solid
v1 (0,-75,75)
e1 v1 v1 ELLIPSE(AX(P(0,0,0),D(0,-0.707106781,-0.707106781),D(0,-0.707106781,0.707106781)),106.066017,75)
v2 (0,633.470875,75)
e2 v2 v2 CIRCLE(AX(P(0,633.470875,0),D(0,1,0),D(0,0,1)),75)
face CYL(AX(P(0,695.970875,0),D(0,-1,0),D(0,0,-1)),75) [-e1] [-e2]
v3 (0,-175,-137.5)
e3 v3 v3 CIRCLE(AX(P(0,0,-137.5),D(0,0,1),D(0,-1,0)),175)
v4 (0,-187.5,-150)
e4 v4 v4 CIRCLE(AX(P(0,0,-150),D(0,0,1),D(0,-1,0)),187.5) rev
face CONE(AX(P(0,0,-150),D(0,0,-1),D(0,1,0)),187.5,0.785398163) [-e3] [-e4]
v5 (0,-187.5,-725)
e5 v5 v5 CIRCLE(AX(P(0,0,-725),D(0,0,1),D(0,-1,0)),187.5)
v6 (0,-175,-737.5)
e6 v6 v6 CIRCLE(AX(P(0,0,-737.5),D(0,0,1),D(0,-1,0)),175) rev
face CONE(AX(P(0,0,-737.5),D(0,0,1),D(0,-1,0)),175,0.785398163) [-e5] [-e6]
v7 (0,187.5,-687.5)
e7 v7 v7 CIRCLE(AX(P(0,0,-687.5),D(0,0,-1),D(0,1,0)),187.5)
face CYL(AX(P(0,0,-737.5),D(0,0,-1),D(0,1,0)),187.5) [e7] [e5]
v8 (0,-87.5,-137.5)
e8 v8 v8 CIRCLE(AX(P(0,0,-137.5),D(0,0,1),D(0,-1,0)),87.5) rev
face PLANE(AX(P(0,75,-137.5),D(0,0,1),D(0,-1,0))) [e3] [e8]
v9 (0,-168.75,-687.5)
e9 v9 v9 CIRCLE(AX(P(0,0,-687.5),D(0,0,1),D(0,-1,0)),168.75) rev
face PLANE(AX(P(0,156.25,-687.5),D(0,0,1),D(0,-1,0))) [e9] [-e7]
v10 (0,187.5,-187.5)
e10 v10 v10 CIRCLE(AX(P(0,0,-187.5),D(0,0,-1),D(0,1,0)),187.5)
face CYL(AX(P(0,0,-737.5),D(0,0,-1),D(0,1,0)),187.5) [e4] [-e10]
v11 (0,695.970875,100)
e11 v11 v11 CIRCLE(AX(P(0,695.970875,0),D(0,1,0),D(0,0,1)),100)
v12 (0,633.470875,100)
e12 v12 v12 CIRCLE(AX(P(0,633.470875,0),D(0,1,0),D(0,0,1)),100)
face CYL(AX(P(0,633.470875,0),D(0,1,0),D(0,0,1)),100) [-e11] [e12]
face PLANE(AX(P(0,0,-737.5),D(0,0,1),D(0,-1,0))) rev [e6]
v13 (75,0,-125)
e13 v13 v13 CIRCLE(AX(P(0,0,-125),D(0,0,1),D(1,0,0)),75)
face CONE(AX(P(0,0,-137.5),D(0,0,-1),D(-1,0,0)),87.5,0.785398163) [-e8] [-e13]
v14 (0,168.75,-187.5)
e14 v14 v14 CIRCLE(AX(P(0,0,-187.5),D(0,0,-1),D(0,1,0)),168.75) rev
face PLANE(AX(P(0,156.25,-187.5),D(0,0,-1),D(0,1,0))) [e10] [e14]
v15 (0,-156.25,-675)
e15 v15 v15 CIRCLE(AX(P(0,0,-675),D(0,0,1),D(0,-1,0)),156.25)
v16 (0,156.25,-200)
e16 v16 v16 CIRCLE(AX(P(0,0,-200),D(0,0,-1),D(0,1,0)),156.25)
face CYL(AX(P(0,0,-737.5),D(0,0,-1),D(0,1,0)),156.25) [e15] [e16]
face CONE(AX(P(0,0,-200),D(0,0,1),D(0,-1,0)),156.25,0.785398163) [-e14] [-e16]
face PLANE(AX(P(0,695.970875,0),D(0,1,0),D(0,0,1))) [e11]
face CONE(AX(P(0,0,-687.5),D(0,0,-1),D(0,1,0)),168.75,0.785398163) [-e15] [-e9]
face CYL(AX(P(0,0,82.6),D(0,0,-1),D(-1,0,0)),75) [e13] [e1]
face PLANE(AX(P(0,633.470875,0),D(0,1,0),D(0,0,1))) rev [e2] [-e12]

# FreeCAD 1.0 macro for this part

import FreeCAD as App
import Part
import Sketcher
from FreeCAD import Vector


def edges_at(feature, points):
    """Names of the edges that pass closest to the given points."""
    edges = feature.Shape.Edges
    near = lambda p: min(range(len(edges)), key=lambda i: edges[i].distToShape(Part.Vertex(*p))[0])
    return sorted({f"Edge{near(p) + 1}" for p in points})


def add_polygon(sketch, points):
    """Adds a closed chain of lines whose ends are joined by coincident constraints."""
    first, n = sketch.GeometryCount, len(points)
    for a, b in zip(points, points[1:] + points[:1]):
        sketch.addGeometry(Part.LineSegment(App.Vector(*a, 0), App.Vector(*b, 0)), False)
    for i in range(n):
        sketch.addConstraint(Sketcher.Constraint("Coincident", first + i, 2, first + (i + 1) % n, 1))

doc = App.newDocument("Part")
body = doc.addObject("PartDesign::Body", "Body")

# Sketch on XZ plane
sketch1 = body.newObject("Sketcher::SketchObject", "Sketch")
sketch1.AttachmentSupport = (doc.getObject("XZ_Plane"), [""])
sketch1.MapMode = "FlatFace"
sketch1.AttachmentOffset = App.Placement(Vector(0, 0, -695.970875), App.Rotation())
sketch1.addGeometry(Part.Circle(Vector(0, 0, 0), Vector(0, 0, 1), 75), False)
sketch1.addConstraint([
    Sketcher.Constraint("Coincident", 0, 3, -1, 1),
    Sketcher.Constraint("Diameter", 0, 150.0),
])

# Sketch on YZ plane
sketch2 = body.newObject("Sketcher::SketchObject", "Sketch001")
sketch2.AttachmentSupport = (doc.getObject("YZ_Plane"), [""])
sketch2.MapMode = "FlatFace"
sketch2.addGeometry([
    Part.LineSegment(Vector(696, 0, 0), Vector(0, 0, 0)),
    Part.LineSegment(Vector(0, 0, 0), Vector(0, -738, 0)),
], False)
sketch2.addConstraint([
    Sketcher.Constraint("Coincident", 0, 2, 1, 1),
    Sketcher.Constraint("Horizontal", 0),
    Sketcher.Constraint("Vertical", 1),
    Sketcher.Constraint("Coincident", 0, 2, -1, 1),
    Sketcher.Constraint("DistanceY", 1, 2, 1, 1, 737.5),
    Sketcher.Constraint("DistanceX", 0, 2, 0, 1, 695.970875),
])
doc.recompute()

additivepipe = body.newObject("PartDesign::AdditivePipe", "AdditivePipe")
additivepipe.Profile = sketch1
additivepipe.Spine = (sketch2, ["Edge1", "Edge2"])
additivepipe.Transition = "Right corner"

# Sketch on XZ plane
sketch3 = body.newObject("Sketcher::SketchObject", "Sketch002")
sketch3.AttachmentSupport = (doc.getObject("XZ_Plane"), [""])
sketch3.MapMode = "FlatFace"
sketch3.AttachmentOffset = App.Placement(Vector(0, 0, -695.970875), App.Rotation())
sketch3.addGeometry(Part.Circle(Vector(0, 0, 0), Vector(0, 0, 1), 100), False)
sketch3.addConstraint([
    Sketcher.Constraint("Coincident", 0, 3, -1, 1),
    Sketcher.Constraint("Diameter", 0, 200.0),
])
pad1 = body.newObject("PartDesign::Pad", "Pad")
pad1.Profile = sketch3
pad1.Length = 62.5

# Sketch on YZ plane
sketch4 = body.newObject("Sketcher::SketchObject", "Sketch003")
sketch4.AttachmentSupport = (doc.getObject("YZ_Plane"), [""])
sketch4.MapMode = "FlatFace"
add_polygon(sketch4, [(188, -138), (75, -138), (75, -738), (188, -738), (188, -688), (156, -688), (156, -188), (188, -188)])  # lines 0-7
sketch4.addConstraint([
    Sketcher.Constraint("Horizontal", 0),
    Sketcher.Constraint("Vertical", 1),
    Sketcher.Constraint("Horizontal", 2),
    Sketcher.Constraint("Vertical", 3),
    Sketcher.Constraint("Horizontal", 4),
    Sketcher.Constraint("Vertical", 5),
    Sketcher.Constraint("Horizontal", 6),
    Sketcher.Constraint("Vertical", 7),
    Sketcher.Constraint("Vertical", 3, 2, 6, 2),
    Sketcher.Constraint("Equal", 3, 7),
    Sketcher.Constraint("DistanceY", 1, 2, 1, 1, 600.0),
    Sketcher.Constraint("DistanceY", 3, 1, 3, 2, 50.0),
    Sketcher.Constraint("DistanceX", 0, 2, 0, 1, 112.5),
    Sketcher.Constraint("DistanceX", -1, 1, 0, 2, 75.0),
    Sketcher.Constraint("DistanceX", 4, 2, 4, 1, 31.25),
    Sketcher.Constraint("DistanceY", 0, 2, -1, 1, 137.5),
])
revolution = body.newObject("PartDesign::Revolution", "Revolution")
revolution.Profile = sketch4
revolution.ReferenceAxis = (sketch4, ["V_Axis"])
revolution.Angle = 360
doc.recompute()

chamfer = body.newObject("PartDesign::Chamfer", "Chamfer")
chamfer.Base = (revolution, edges_at(revolution, [
    (-75, 0, -137.5),
    (0, -187.5, -137.5),
    (0, -156.25, -187.5),
    (0, -156.25, -687.5),
    (0, -187.5, -737.5),
]))
chamfer.Size = 12.5

doc.recompute()
